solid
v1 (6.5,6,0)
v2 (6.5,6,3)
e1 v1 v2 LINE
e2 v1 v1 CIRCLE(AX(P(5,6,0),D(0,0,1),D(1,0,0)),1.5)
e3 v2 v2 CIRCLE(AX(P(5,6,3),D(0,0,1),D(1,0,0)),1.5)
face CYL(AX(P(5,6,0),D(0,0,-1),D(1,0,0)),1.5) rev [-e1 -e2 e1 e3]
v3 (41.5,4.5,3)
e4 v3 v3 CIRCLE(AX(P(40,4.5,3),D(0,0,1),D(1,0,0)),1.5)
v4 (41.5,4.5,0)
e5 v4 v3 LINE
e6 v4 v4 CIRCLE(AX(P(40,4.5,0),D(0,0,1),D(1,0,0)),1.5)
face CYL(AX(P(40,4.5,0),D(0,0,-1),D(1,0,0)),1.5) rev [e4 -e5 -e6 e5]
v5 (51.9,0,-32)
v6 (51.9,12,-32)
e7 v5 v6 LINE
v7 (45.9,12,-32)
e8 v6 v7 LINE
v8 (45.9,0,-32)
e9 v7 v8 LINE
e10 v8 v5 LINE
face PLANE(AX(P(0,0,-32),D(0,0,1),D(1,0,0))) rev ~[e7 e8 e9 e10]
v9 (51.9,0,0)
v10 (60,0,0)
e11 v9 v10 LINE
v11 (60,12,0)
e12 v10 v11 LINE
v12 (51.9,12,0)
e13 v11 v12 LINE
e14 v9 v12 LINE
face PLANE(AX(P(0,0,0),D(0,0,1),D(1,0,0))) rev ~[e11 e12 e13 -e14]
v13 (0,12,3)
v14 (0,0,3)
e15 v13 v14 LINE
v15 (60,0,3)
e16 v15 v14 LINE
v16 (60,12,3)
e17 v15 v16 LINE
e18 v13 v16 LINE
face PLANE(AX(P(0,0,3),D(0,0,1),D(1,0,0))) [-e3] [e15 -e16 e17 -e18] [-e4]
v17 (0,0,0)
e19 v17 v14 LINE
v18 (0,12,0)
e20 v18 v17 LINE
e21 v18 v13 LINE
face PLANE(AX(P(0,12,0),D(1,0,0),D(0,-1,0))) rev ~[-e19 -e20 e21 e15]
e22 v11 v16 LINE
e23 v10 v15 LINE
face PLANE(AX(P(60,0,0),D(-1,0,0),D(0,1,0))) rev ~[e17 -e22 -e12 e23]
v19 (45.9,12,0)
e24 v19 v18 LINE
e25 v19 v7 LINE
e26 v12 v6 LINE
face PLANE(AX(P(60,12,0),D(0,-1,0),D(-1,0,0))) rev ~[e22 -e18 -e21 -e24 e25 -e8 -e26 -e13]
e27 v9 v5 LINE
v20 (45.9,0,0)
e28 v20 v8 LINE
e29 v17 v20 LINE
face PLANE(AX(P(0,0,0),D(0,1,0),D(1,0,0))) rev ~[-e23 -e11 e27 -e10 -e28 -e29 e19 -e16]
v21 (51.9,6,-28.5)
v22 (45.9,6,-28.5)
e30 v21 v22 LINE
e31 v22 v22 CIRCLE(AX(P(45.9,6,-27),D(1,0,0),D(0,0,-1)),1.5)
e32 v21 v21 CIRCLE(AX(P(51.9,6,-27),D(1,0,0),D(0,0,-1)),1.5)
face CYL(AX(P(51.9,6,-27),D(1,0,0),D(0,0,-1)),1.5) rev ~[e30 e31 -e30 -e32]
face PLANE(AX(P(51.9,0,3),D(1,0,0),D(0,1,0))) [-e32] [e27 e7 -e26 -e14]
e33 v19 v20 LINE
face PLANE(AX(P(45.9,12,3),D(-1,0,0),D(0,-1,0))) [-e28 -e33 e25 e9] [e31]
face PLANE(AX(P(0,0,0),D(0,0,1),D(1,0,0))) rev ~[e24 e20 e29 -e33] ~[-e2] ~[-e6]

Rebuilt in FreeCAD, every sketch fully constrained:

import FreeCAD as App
import Part
import Sketcher
Q = App.Units.Quantity


def add_polygon(sketch, points):
    """Adds a closed chain of lines whose ends are joined by coincident constraints."""
    first, n = sketch.GeometryCount, len(points)
    for a, b in zip(points, points[1:] + points[:1]):
        sketch.addGeometry(Part.LineSegment(App.Vector(*a, 0), App.Vector(*b, 0)), False)
    for i in range(n):
        sketch.addConstraint(Sketcher.Constraint("Coincident", first + i, 2, first + (i + 1) % n, 1))

doc = App.newDocument("Part")
body = doc.addObject("PartDesign::Body", "Body")

sketch1 = body.newObject("Sketcher::SketchObject", "Sketch")
sketch1.AttachmentSupport = (doc.getObject("XY_Plane"), [""])
sketch1.MapMode = "FlatFace"
add_polygon(sketch1, [(0, 12), (0, 0), (60, 0), (60, 12)])
sketch1.addGeometry(Part.Circle(App.Vector(40, 4.5, 0), App.Vector(0, 0, 1), 1.5), False)
sketch1.addGeometry(Part.Circle(App.Vector(5, 6, 0), App.Vector(0, 0, 1), 1.5), False)
sketch1.addConstraint([
    Sketcher.Constraint("Vertical", 0),
    Sketcher.Constraint("Horizontal", 1),
    Sketcher.Constraint("Vertical", 2),
    Sketcher.Constraint("Horizontal", 3),
    Sketcher.Constraint("Coincident", 0, 2, -1, 1),
    Sketcher.Constraint("Equal", 4, 5),
    Sketcher.Constraint("Diameter", 4, Q("3 mm")),
    Sketcher.Constraint("DistanceX", 1, 1, 1, 2, Q("60 mm")),
    Sketcher.Constraint("DistanceY", 0, 2, 0, 1, Q("12 mm")),
    Sketcher.Constraint("DistanceX", -1, 1, 5, 3, Q("5 mm")),
    Sketcher.Constraint("DistanceX", 4, 3, 1, 2, Q("20 mm")),
    Sketcher.Constraint("DistanceY", -1, 1, 4, 3, Q("4.5 mm")),
    Sketcher.Constraint("DistanceY", -1, 1, 5, 3, Q("6 mm")),
])
pad1 = body.newObject("PartDesign::Pad", "Pad")
pad1.Profile = sketch1
pad1.Length = 3

sketch2 = body.newObject("Sketcher::SketchObject", "Sketch001")
sketch2.AttachmentSupport = (doc.getObject("XY_Plane"), [""])
sketch2.MapMode = "FlatFace"
sketch2.AttachmentOffset = App.Placement(App.Vector(0, 0, 3), App.Rotation())
add_polygon(sketch2, [(52, 0), (52, 12), (46, 12), (46, 0)])
sketch2.addConstraint([
    Sketcher.Constraint("Vertical", 0),
    Sketcher.Constraint("Horizontal", 1),
    Sketcher.Constraint("Vertical", 2),
    Sketcher.Constraint("Horizontal", 3),
    Sketcher.Constraint("PointOnObject", 2, 2, -1),
    Sketcher.Constraint("DistanceX", 1, 2, 1, 1, Q("6 mm")),
    Sketcher.Constraint("DistanceY", 0, 1, 0, 2, Q("12 mm")),
    Sketcher.Constraint("DistanceX", -1, 1, 0, 2, Q("51.9 mm")),
])
pad2 = body.newObject("PartDesign::Pad", "Pad001")
pad2.Profile = sketch2
pad2.Length = 35
pad2.Reversed = True

sketch3 = body.newObject("Sketcher::SketchObject", "Sketch002")
sketch3.AttachmentSupport = (doc.getObject("YZ_Plane"), [""])
sketch3.MapMode = "FlatFace"
sketch3.AttachmentOffset = App.Placement(App.Vector(0, 0, 51.9), App.Rotation())
sketch3.addGeometry(Part.Circle(App.Vector(6, -27, 0), App.Vector(0, 0, 1), 1.5), False)
sketch3.addConstraint([
    Sketcher.Constraint("Diameter", 0, Q("3 mm")),
    Sketcher.Constraint("DistanceX", -1, 1, 0, 3, Q("6 mm")),
    Sketcher.Constraint("DistanceY", 0, 3, -1, 1, Q("27 mm")),
])
pocket1 = body.newObject("PartDesign::Pocket", "Pocket")
pocket1.Profile = sketch3
pocket1.Type = "ThroughAll"

doc.recompute()
